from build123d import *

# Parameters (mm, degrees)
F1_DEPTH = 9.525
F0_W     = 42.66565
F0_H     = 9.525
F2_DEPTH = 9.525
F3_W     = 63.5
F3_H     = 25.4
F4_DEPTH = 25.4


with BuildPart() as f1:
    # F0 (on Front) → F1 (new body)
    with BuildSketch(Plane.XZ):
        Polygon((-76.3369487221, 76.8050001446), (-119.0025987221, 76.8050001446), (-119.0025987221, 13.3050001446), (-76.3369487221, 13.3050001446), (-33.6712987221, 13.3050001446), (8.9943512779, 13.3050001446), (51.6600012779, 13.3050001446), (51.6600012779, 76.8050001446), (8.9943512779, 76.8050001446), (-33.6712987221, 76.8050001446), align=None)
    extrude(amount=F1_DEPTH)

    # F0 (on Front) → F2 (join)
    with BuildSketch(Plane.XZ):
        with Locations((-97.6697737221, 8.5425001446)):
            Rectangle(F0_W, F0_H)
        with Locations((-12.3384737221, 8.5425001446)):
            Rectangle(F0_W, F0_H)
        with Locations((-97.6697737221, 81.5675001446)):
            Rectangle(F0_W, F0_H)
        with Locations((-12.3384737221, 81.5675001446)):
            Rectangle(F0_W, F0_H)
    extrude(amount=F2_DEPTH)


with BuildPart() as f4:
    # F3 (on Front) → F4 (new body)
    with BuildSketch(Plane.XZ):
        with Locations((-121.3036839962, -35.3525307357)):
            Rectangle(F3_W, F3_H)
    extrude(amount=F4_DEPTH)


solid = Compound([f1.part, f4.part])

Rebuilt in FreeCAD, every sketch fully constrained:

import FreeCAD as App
import Part
import Sketcher
Q = App.Units.Quantity


def add_polygon(sketch, points):
    """Adds a closed chain of lines whose ends are joined by coincident constraints."""
    first, n = sketch.GeometryCount, len(points)
    for a, b in zip(points, points[1:] + points[:1]):
        sketch.addGeometry(Part.LineSegment(App.Vector(*a, 0), App.Vector(*b, 0)), False)
    for i in range(n):
        sketch.addConstraint(Sketcher.Constraint("Coincident", first + i, 2, first + (i + 1) % n, 1))

doc = App.newDocument("Part")
body = doc.addObject("PartDesign::Body", "Body")

# Sketch on XZ plane
sketch1 = body.newObject("Sketcher::SketchObject", "Sketch")
sketch1.AttachmentSupport = (doc.getObject("XZ_Plane"), [""])
sketch1.MapMode = "FlatFace"
add_polygon(sketch1, [(-119, 77), (-119, 13), (52, 13), (52, 77)])  # lines 0-3
sketch1.addConstraint([
    Sketcher.Constraint("Vertical", 0),
    Sketcher.Constraint("Horizontal", 1),
    Sketcher.Constraint("Vertical", 2),
    Sketcher.Constraint("Horizontal", 3),
    Sketcher.Constraint("DistanceY", 0, 2, 0, 1, Q("2.5 in")),
    Sketcher.Constraint("DistanceX", 1, 1, 1, 2, Q("6.719 in")),
    Sketcher.Constraint("DistanceX", 0, 2, -1, 1, 119.002599),
    Sketcher.Constraint("DistanceY", -1, 1, 0, 2, 13.305),
])
pad1 = body.newObject("PartDesign::Pad", "Pad")
pad1.Profile = sketch1
pad1.Length = Q("0.375 in")

# Sketch on XZ plane
sketch2 = body.newObject("Sketcher::SketchObject", "Sketch001")
sketch2.AttachmentSupport = (doc.getObject("XZ_Plane"), [""])
sketch2.MapMode = "FlatFace"
add_polygon(sketch2, [(-119, 13), (-119, 4), (-76, 4), (-76, 13)])  # lines 0-3
add_polygon(sketch2, [(-34, 13), (-34, 4), (9, 4), (9, 13)])  # lines 4-7
add_polygon(sketch2, [(-119, 86), (-119, 77), (-76, 77), (-76, 86)])  # lines 8-11
add_polygon(sketch2, [(-34, 86), (-34, 77), (9, 77), (9, 86)])  # lines 12-15
sketch2.addConstraint([
    Sketcher.Constraint("Vertical", 0),
    Sketcher.Constraint("Horizontal", 1),
    Sketcher.Constraint("Vertical", 2),
    Sketcher.Constraint("Horizontal", 3),
    Sketcher.Constraint("Vertical", 4),
    Sketcher.Constraint("Horizontal", 5),
    Sketcher.Constraint("Vertical", 6),
    Sketcher.Constraint("Horizontal", 7),
    Sketcher.Constraint("Vertical", 8),
    Sketcher.Constraint("Horizontal", 9),
    Sketcher.Constraint("Vertical", 10),
    Sketcher.Constraint("Horizontal", 11),
    Sketcher.Constraint("Vertical", 12),
    Sketcher.Constraint("Horizontal", 13),
    Sketcher.Constraint("Vertical", 14),
    Sketcher.Constraint("Horizontal", 15),
    Sketcher.Constraint("Horizontal", 1, 2, 4, 2),
    Sketcher.Constraint("Horizontal", 3, 2, 6, 2),
    Sketcher.Constraint("Horizontal", 9, 2, 12, 2),
    Sketcher.Constraint("Horizontal", 11, 2, 14, 2),
    Sketcher.Constraint("Vertical", 3, 2, 8, 2),
    Sketcher.Constraint("Vertical", 2, 2, 9, 2),
    Sketcher.Constraint("Vertical", 7, 2, 12, 2),
    Sketcher.Constraint("Vertical", 6, 2, 13, 2),
    Sketcher.Constraint("Equal", 3, 5),
    Sketcher.Constraint("Equal", 6, 8),
    Sketcher.Constraint("DistanceY", 3, 2, 8, 2, Q("2.5 in")),
    Sketcher.Constraint("DistanceY", 0, 2, 0, 1, Q("0.375 in")),
    Sketcher.Constraint("DistanceX", 0, 2, 4, 2, Q("3.3595 in")),
    Sketcher.Constraint("DistanceX", 1, 1, 1, 2, 42.66565),
    Sketcher.Constraint("DistanceX", 0, 2, -1, 1, 119.002599),
    Sketcher.Constraint("DistanceY", -1, 1, 0, 2, 3.78),
])
pad2 = body.newObject("PartDesign::Pad", "Pad001")
pad2.Profile = sketch2
pad2.Length = Q("0.375 in")
body2 = doc.addObject("PartDesign::Body", "Body001")

# Sketch on XZ plane
sketch3 = body2.newObject("Sketcher::SketchObject", "Sketch002")
sketch3.AttachmentSupport = (doc.getObject("XZ_Plane001"), [""])
sketch3.MapMode = "FlatFace"
add_polygon(sketch3, [(-153, -23), (-153, -48), (-90, -48), (-90, -23)])  # lines 0-3
sketch3.addConstraint([
    Sketcher.Constraint("Vertical", 0),
    Sketcher.Constraint("Horizontal", 1),
    Sketcher.Constraint("Vertical", 2),
    Sketcher.Constraint("Horizontal", 3),
    Sketcher.Constraint("DistanceY", 0, 2, 0, 1, Q("1 in")),
    Sketcher.Constraint("DistanceX", 1, 1, 1, 2, Q("2.5 in")),
    Sketcher.Constraint("DistanceY", 0, 2, -1, 1, 48.052531),
    Sketcher.Constraint("DistanceX", 0, 2, -1, 1, 153.053684),
])
pad3 = body2.newObject("PartDesign::Pad", "Pad002")
pad3.Profile = sketch3
pad3.Length = Q("1 in")

doc.recompute()
